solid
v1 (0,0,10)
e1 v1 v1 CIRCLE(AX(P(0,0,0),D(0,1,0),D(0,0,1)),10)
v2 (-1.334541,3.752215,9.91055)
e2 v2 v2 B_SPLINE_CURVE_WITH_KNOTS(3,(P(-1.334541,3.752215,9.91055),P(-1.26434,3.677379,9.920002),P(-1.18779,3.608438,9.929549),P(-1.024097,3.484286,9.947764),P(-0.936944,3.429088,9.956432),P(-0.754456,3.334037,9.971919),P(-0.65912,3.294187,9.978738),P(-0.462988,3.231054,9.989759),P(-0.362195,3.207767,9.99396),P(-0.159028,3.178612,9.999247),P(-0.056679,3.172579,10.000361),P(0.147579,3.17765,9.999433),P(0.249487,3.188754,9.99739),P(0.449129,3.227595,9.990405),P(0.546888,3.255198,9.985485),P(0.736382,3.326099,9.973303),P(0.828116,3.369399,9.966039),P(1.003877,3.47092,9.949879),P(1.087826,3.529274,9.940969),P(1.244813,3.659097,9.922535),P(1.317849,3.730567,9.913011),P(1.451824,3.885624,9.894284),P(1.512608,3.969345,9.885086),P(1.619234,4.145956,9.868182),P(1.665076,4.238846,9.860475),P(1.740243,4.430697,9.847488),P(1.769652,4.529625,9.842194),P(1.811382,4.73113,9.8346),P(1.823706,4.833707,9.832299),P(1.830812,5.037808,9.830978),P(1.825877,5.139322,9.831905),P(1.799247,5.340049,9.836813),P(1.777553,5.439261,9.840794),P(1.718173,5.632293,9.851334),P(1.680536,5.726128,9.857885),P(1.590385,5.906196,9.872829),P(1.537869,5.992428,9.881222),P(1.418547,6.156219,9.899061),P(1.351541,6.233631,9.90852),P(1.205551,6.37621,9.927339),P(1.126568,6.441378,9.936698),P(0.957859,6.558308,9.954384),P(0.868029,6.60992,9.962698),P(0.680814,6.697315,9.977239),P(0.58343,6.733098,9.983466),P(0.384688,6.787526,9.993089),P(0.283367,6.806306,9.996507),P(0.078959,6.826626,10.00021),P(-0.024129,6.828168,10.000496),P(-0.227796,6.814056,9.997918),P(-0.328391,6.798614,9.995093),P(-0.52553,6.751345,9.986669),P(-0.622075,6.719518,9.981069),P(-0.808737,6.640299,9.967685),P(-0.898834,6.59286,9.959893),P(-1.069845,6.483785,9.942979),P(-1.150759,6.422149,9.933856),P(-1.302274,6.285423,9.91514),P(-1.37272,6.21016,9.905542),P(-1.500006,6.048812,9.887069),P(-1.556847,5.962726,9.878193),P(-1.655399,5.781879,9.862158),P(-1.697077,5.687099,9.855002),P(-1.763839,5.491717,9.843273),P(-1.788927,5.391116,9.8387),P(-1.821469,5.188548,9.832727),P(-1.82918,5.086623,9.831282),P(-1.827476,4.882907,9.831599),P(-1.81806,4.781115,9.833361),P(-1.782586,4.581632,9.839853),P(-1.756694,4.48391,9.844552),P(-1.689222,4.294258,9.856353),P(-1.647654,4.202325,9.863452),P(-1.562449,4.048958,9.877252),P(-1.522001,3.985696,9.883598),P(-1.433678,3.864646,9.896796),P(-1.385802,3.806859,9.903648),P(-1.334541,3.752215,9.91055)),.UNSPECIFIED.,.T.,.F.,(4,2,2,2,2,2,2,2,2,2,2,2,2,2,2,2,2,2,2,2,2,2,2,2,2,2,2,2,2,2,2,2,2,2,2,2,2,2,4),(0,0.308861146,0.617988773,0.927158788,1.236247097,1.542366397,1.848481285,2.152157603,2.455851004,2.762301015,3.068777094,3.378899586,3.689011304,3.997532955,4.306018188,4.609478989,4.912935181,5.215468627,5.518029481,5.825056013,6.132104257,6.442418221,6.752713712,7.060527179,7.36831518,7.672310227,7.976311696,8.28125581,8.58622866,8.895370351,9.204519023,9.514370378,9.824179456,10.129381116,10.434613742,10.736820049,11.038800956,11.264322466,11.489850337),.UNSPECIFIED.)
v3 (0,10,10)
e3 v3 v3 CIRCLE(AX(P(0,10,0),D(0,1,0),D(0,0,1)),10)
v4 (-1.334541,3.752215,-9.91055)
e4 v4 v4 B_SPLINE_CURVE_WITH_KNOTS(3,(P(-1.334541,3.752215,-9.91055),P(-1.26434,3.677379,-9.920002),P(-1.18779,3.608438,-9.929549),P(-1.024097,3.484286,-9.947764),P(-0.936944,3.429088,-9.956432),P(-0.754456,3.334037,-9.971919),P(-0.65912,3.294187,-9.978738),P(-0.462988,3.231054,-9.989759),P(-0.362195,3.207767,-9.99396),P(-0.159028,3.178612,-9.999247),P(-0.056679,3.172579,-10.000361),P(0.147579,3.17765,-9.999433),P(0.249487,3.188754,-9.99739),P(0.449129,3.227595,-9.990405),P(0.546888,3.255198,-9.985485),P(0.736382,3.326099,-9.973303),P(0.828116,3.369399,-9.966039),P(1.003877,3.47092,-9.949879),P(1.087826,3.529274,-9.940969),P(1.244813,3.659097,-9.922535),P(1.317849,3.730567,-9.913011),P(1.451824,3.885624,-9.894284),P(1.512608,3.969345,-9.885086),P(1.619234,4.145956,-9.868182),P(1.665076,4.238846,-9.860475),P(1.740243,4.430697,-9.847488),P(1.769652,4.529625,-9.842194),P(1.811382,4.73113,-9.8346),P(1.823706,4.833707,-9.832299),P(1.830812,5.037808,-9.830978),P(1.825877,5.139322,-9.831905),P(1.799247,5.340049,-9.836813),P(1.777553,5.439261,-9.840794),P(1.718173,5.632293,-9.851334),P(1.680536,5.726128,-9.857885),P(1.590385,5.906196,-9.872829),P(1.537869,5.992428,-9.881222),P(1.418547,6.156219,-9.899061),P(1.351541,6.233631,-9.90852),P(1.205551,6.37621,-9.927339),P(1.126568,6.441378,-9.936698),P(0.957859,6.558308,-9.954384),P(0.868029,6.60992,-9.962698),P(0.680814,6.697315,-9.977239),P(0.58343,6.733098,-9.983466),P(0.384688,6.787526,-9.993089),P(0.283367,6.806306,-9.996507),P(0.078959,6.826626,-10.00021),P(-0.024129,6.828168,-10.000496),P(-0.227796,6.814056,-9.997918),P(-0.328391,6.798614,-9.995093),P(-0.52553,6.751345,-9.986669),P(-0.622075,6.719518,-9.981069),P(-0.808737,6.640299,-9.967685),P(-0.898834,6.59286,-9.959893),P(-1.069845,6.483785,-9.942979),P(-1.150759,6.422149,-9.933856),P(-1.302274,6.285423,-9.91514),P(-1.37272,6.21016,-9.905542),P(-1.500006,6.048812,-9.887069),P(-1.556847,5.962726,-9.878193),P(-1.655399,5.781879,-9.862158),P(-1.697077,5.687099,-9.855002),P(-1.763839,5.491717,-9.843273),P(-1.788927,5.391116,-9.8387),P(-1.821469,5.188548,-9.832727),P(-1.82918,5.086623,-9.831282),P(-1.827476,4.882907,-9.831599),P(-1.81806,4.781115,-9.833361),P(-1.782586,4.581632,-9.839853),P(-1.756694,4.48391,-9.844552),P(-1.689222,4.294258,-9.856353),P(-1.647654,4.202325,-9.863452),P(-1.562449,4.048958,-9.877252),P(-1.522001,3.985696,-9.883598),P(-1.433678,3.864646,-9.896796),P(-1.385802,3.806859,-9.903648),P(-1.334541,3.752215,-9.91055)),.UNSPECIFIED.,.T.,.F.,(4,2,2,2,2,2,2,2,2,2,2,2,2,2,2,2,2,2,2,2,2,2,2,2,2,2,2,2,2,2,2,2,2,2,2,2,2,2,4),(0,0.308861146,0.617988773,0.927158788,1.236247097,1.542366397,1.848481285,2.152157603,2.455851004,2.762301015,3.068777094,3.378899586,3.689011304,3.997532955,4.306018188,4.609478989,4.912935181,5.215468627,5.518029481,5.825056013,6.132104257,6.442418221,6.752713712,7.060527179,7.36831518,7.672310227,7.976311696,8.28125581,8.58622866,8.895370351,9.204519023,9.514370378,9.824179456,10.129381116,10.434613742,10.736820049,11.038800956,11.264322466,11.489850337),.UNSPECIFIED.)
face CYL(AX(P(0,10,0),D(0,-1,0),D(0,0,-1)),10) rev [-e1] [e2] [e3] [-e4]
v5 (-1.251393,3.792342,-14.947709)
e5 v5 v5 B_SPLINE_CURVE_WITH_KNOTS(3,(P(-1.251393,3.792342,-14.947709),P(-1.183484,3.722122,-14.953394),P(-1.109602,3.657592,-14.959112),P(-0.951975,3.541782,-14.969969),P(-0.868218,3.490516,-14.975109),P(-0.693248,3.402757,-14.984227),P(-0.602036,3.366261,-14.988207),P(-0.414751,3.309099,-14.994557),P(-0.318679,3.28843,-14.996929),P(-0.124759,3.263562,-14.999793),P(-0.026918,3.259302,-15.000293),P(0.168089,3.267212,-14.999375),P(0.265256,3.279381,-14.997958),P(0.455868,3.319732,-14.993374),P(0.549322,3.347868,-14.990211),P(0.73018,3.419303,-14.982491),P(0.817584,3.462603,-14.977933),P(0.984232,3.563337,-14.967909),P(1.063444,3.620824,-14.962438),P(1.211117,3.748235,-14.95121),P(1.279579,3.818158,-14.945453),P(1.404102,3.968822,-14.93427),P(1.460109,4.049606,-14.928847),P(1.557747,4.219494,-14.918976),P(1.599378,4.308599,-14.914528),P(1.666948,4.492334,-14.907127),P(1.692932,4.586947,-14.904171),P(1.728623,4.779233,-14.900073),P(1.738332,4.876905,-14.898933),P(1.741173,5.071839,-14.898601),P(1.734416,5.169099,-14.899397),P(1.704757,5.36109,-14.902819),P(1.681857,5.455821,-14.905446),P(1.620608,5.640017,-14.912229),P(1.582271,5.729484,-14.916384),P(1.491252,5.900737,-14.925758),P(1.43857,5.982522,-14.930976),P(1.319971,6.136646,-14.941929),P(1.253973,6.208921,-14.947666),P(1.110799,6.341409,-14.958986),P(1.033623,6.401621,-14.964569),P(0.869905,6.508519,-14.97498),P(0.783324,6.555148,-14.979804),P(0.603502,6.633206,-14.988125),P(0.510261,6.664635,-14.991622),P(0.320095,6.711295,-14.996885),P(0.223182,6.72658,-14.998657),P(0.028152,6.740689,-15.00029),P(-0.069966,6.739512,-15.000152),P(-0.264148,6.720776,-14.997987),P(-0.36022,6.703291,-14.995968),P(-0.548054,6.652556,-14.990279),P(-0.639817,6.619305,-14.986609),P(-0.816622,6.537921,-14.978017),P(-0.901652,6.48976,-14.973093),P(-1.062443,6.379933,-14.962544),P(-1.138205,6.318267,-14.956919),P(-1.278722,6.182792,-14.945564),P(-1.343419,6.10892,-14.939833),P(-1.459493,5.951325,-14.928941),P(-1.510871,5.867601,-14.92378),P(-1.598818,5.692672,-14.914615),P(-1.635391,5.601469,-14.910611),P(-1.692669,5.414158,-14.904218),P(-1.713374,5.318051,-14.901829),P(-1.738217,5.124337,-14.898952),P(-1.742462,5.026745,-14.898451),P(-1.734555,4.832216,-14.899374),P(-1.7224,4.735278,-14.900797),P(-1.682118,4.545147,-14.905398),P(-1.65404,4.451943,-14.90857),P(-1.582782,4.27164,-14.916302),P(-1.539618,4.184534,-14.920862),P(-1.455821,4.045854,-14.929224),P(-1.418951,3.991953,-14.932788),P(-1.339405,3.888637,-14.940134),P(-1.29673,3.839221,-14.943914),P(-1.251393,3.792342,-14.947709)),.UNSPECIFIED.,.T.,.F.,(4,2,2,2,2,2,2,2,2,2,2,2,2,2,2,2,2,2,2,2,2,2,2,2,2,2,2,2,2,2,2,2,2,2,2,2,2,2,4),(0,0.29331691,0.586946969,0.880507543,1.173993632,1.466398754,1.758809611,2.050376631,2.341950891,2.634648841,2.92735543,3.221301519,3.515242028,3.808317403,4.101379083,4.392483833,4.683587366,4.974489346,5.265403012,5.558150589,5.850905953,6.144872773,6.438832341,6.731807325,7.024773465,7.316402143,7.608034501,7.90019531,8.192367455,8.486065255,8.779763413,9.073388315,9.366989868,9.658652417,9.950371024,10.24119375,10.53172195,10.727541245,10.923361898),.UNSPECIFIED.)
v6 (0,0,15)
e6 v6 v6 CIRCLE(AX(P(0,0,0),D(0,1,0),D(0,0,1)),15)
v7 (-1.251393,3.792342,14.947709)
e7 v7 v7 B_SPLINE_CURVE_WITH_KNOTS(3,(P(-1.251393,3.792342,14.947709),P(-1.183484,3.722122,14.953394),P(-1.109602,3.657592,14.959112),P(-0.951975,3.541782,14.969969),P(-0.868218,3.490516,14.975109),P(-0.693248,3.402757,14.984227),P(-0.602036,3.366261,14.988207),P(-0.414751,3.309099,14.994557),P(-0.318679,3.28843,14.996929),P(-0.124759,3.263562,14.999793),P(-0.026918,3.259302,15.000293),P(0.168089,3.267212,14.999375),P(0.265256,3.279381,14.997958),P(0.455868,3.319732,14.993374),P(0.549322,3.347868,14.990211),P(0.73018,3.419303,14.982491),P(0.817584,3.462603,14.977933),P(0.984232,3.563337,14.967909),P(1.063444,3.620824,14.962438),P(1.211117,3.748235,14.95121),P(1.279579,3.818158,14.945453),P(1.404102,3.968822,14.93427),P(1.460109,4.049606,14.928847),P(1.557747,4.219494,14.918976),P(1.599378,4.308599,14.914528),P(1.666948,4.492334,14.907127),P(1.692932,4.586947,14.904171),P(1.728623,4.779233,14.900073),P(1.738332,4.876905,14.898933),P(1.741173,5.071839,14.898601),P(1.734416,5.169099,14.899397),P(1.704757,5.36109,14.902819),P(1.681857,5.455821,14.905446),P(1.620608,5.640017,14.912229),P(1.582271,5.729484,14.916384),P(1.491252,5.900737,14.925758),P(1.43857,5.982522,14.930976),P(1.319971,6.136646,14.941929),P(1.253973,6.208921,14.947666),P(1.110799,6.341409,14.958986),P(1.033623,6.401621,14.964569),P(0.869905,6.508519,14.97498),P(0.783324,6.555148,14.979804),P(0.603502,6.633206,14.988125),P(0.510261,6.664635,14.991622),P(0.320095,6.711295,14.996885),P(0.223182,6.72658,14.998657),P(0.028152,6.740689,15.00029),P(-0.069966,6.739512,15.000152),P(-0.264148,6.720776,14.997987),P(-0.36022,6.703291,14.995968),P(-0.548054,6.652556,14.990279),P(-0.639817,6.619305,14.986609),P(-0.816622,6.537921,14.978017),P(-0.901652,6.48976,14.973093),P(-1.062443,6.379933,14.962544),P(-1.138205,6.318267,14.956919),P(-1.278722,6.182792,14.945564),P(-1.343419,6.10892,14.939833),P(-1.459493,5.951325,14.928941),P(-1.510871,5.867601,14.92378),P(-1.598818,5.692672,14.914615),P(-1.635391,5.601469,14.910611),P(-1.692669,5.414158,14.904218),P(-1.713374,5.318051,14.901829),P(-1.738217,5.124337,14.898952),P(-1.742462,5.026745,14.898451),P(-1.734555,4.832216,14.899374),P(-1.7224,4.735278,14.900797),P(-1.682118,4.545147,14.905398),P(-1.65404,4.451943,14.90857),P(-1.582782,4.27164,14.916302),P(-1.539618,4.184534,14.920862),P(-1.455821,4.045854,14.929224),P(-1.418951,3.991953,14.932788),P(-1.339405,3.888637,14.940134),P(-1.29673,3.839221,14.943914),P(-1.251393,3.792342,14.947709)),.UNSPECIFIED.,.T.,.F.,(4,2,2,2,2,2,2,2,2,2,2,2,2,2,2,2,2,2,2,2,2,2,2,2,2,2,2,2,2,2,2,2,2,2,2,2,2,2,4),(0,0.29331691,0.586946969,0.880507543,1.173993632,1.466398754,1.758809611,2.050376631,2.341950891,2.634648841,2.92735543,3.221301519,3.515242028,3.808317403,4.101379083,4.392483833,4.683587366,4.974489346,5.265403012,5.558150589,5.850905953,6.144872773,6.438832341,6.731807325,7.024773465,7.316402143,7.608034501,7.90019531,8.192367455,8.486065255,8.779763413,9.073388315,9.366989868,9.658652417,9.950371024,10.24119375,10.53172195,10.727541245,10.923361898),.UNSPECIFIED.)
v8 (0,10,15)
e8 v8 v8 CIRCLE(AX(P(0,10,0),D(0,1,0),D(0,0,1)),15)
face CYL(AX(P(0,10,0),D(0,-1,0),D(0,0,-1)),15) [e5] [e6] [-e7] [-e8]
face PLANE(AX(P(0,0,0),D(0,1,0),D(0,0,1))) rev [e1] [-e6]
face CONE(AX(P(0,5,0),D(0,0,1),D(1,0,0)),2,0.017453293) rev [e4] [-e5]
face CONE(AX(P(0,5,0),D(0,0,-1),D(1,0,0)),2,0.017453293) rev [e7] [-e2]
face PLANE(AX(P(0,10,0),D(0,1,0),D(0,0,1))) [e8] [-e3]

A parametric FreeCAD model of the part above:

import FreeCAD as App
import Part
import Sketcher

doc = App.newDocument("Part")
params = doc.addObject("Spreadsheet::Sheet", "Params")
for row, (alias, value) in enumerate([
    ("sketch1_diameter", "30 mm"),
    ("sketch1_diameter2", "20 mm"),
    ("pad1_length", "10 mm"),
    ("sketch2_diameter", "4 mm"),
    ("pocket1_length", "21 mm"),
    ("pocket1_taper", "-1 deg"),
    ("sketch3_diameter", "4 mm"),
    ("pocket2_length", "19 mm"),
    ("pocket2_taper", "-1 deg"),
], start=1):
    params.set(f"A{row}", alias)
    params.set(f"B{row}", "=" + value)
    params.setAlias(f"B{row}", alias)

body = doc.addObject("PartDesign::Body", "Body")

sketch1 = doc.addObject("Sketcher::SketchObject", "Sketch")
body.addObject(sketch1)
sketch1.AttachmentSupport = (doc.XZ_Plane, [""])
sketch1.MapMode = "FlatFace"
sketch1.addGeometry([
    Part.Circle(App.Vector(0, 0, 0), App.Vector(0, 0, 1), 15),
    Part.Circle(App.Vector(0, 0, 0), App.Vector(0, 0, 1), 10),
], False)
sketch1.addConstraint([
    Sketcher.Constraint("Coincident", 0, 3, -1, 1),
    Sketcher.Constraint("Coincident", 1, 3, -1, 1),
    Sketcher.Constraint("Diameter", 0, 30.0),
    Sketcher.Constraint("Diameter", 1, 20.0),
])
sketch1.setExpression("Constraints[2]", "Params.sketch1_diameter")
sketch1.setExpression("Constraints[3]", "Params.sketch1_diameter2")
pad1 = doc.addObject("PartDesign::Pad", "Pad")
body.addObject(pad1)
pad1.Profile = sketch1
pad1.setExpression("Length", "Params.pad1_length")
pad1.Reversed = True

sketch2 = doc.addObject("Sketcher::SketchObject", "Sketch001")
body.addObject(sketch2)
sketch2.AttachmentSupport = (doc.XY_Plane, [""])
sketch2.MapMode = "FlatFace"
sketch2.addGeometry(Part.Circle(App.Vector(0, 5, 0), App.Vector(0, 0, 1), 2), False)
sketch2.addConstraint([
    Sketcher.Constraint("PointOnObject", 0, 3, -2),
    Sketcher.Constraint("Diameter", 0, 4.0),
    Sketcher.Constraint("DistanceY", -1, 1, 0, 3, 5.0),
])
sketch2.setExpression("Constraints[1]", "Params.sketch2_diameter")
pocket1 = doc.addObject("PartDesign::Pocket", "Pocket")
body.addObject(pocket1)
pocket1.Profile = sketch2
pocket1.setExpression("Length", "Params.pocket1_length")
pocket1.setExpression("TaperAngle", "Params.pocket1_taper")

sketch3 = doc.addObject("Sketcher::SketchObject", "Sketch002")
body.addObject(sketch3)
sketch3.AttachmentSupport = (doc.XY_Plane, [""])
sketch3.MapMode = "FlatFace"
sketch3.addGeometry(Part.Circle(App.Vector(0, 5, 0), App.Vector(0, 0, 1), 2), False)
sketch3.addConstraint([
    Sketcher.Constraint("PointOnObject", 0, 3, -2),
    Sketcher.Constraint("Diameter", 0, 4.0),
    Sketcher.Constraint("DistanceY", -1, 1, 0, 3, 5.0),
])
sketch3.setExpression("Constraints[1]", "Params.sketch3_diameter")
pocket2 = doc.addObject("PartDesign::Pocket", "Pocket001")
body.addObject(pocket2)
pocket2.Profile = sketch3
pocket2.setExpression("Length", "Params.pocket2_length")
pocket2.Reversed = True
pocket2.setExpression("TaperAngle", "Params.pocket2_taper")

doc.recompute()
